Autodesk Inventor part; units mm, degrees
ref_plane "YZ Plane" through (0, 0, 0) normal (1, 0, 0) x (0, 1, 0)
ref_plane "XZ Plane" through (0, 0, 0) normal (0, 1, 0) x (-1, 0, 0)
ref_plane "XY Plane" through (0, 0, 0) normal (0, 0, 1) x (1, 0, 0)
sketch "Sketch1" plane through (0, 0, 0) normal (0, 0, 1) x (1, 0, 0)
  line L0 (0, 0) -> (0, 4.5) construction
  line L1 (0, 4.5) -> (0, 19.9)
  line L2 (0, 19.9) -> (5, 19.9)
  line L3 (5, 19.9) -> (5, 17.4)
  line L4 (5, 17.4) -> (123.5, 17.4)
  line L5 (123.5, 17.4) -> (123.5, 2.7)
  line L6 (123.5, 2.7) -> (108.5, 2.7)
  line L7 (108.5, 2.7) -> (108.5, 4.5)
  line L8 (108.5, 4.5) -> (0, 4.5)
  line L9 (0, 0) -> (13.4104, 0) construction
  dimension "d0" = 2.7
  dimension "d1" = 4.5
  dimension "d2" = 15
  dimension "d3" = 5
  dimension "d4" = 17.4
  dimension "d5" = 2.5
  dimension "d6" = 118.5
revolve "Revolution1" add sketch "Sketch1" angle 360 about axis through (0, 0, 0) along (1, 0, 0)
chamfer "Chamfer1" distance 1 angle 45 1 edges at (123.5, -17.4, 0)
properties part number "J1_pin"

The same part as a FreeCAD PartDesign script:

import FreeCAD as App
import Part
import Sketcher
Q = App.Units.Quantity


def edges_at(feature, points):
    """Names of the edges that pass closest to the given points."""
    edges = feature.Shape.Edges
    near = lambda p: min(range(len(edges)), key=lambda i: edges[i].distToShape(Part.Vertex(*p))[0])
    return sorted({f"Edge{near(p) + 1}" for p in points})

doc = App.newDocument("Part")
body = doc.addObject("PartDesign::Body", "Body")

# Sketch on XY plane
sketch1 = body.newObject("Sketcher::SketchObject", "Sketch")
sketch1.AttachmentSupport = (doc.getObject("XY_Plane"), [""])
sketch1.MapMode = "FlatFace"
sketch1.addGeometry(Part.LineSegment(App.Vector(0, 19.9, 0), App.Vector(0, 4.5, 0)), False)
sketch1.addGeometry(Part.LineSegment(App.Vector(0, 4.5, 0), App.Vector(108.5, 4.5, 0)), False)
sketch1.addGeometry(Part.LineSegment(App.Vector(108.5, 4.5, 0), App.Vector(108.5, 2.7, 0)), False)
sketch1.addGeometry(Part.LineSegment(App.Vector(108.5, 2.7, 0), App.Vector(123.5, 2.7, 0)), False)
sketch1.addGeometry(Part.LineSegment(App.Vector(123.5, 2.7, 0), App.Vector(123.5, 17.4, 0)), False)
sketch1.addGeometry(Part.LineSegment(App.Vector(123.5, 17.4, 0), App.Vector(5, 17.4, 0)), False)
sketch1.addGeometry(Part.LineSegment(App.Vector(5, 17.4, 0), App.Vector(5, 19.9, 0)), False)
sketch1.addGeometry(Part.LineSegment(App.Vector(5, 19.9, 0), App.Vector(0, 19.9, 0)), False)
sketch1.addConstraint(Sketcher.Constraint("Coincident", 0, 2, 1, 1))
sketch1.addConstraint(Sketcher.Constraint("Coincident", 1, 2, 2, 1))
sketch1.addConstraint(Sketcher.Constraint("Coincident", 2, 2, 3, 1))
sketch1.addConstraint(Sketcher.Constraint("Coincident", 3, 2, 4, 1))
sketch1.addConstraint(Sketcher.Constraint("Coincident", 4, 2, 5, 1))
sketch1.addConstraint(Sketcher.Constraint("Coincident", 5, 2, 6, 1))
sketch1.addConstraint(Sketcher.Constraint("Coincident", 6, 2, 7, 1))
sketch1.addConstraint(Sketcher.Constraint("Coincident", 7, 2, 0, 1))
sketch1.addConstraint(Sketcher.Constraint("Vertical", 0))
sketch1.addConstraint(Sketcher.Constraint("Horizontal", 1))
sketch1.addConstraint(Sketcher.Constraint("Vertical", 2))
sketch1.addConstraint(Sketcher.Constraint("Horizontal", 3))
sketch1.addConstraint(Sketcher.Constraint("Vertical", 4))
sketch1.addConstraint(Sketcher.Constraint("Horizontal", 5))
sketch1.addConstraint(Sketcher.Constraint("Vertical", 6))
sketch1.addConstraint(Sketcher.Constraint("Horizontal", 7))
sketch1.addConstraint(Sketcher.Constraint("PointOnObject", 0, 2, -2))
sketch1.addConstraint(Sketcher.Constraint("DistanceX", 3, 1, 3, 2, Q("15 mm")))
sketch1.addConstraint(Sketcher.Constraint("DistanceX", 7, 2, 7, 1, Q("5 mm")))
sketch1.addConstraint(Sketcher.Constraint("DistanceX", 5, 2, 5, 1, Q("118.5 mm")))
sketch1.addConstraint(Sketcher.Constraint("DistanceY", 6, 1, 6, 2, Q("2.5 mm")))
sketch1.addConstraint(Sketcher.Constraint("DistanceY", -1, 1, 0, 2, Q("4.5 mm")))
sketch1.addConstraint(Sketcher.Constraint("DistanceY", -1, 1, 2, 2, Q("2.7 mm")))
sketch1.addConstraint(Sketcher.Constraint("DistanceY", -1, 1, 4, 2, Q("17.4 mm")))
revolution = body.newObject("PartDesign::Revolution", "Revolution")
revolution.Profile = sketch1
revolution.ReferenceAxis = (sketch1, ["H_Axis"])
revolution.Angle = 360
doc.recompute()

chamfer = body.newObject("PartDesign::Chamfer", "Chamfer")
chamfer.Base = (revolution, edges_at(revolution, [(123.5, -17.4, 0)]))
chamfer.Size = 1

doc.recompute()
